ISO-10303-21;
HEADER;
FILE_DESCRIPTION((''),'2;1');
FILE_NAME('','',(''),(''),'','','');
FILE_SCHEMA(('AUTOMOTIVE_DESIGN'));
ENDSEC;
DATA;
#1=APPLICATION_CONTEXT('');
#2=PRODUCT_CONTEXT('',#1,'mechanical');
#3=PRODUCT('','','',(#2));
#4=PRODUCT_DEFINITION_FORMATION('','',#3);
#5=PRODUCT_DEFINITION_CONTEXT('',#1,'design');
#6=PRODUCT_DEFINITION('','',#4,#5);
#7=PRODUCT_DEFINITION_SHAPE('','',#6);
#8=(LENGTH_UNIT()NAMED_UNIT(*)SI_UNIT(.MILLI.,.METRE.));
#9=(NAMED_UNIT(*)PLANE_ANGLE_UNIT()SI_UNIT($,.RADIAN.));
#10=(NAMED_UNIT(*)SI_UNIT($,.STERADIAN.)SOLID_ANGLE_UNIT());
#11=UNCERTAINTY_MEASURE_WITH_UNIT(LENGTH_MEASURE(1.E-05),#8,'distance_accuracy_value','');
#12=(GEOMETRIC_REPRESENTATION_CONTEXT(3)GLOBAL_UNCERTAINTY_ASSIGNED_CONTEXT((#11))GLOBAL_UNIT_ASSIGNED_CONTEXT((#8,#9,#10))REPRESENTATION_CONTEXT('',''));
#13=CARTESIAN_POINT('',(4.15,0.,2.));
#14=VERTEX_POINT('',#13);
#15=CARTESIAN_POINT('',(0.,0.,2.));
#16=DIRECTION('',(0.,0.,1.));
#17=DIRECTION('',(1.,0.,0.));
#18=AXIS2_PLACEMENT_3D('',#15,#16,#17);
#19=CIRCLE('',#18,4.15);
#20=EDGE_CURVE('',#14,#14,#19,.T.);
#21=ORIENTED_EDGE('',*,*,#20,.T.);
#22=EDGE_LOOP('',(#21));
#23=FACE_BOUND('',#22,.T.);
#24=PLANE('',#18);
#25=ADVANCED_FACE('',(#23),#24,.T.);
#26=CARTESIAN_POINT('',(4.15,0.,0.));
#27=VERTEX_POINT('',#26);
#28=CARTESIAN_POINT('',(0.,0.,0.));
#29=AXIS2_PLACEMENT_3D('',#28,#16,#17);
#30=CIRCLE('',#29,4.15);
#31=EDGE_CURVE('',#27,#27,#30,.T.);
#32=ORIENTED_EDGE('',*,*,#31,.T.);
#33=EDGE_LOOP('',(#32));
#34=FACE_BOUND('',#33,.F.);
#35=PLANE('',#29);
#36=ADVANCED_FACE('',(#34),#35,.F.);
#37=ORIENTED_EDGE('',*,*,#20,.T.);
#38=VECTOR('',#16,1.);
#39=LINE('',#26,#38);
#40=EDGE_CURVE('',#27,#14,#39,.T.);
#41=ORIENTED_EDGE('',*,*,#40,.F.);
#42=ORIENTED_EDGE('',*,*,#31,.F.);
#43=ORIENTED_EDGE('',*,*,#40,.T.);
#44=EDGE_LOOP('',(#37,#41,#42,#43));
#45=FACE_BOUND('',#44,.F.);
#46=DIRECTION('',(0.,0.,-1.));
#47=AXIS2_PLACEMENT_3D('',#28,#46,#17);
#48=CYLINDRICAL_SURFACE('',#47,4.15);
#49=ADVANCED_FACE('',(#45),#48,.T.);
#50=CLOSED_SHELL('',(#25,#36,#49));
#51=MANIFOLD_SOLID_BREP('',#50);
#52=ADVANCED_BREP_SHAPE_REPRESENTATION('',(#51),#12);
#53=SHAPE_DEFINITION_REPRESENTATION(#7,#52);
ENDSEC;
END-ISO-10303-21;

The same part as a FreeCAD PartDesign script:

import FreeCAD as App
import Part
import Sketcher
from FreeCAD import Vector
Q = App.Units.Quantity

doc = App.newDocument("Part")
body = doc.addObject("PartDesign::Body", "Body")

# Sketch on XY plane
sketch1 = body.newObject("Sketcher::SketchObject", "Sketch")
sketch1.AttachmentSupport = (doc.getObject("XY_Plane"), [""])
sketch1.MapMode = "FlatFace"
sketch1.addGeometry(Part.Circle(Vector(0, 0, 0), Vector(0, 0, 1), 4.15), False)
sketch1.addConstraint(Sketcher.Constraint("Coincident", 0, 3, -1, 1))
sketch1.addConstraint(Sketcher.Constraint("Diameter", 0, Q("8.3 mm")))
pad1 = body.newObject("PartDesign::Pad", "Pad")
pad1.Profile = sketch1
pad1.Length = 2

doc.recompute()
